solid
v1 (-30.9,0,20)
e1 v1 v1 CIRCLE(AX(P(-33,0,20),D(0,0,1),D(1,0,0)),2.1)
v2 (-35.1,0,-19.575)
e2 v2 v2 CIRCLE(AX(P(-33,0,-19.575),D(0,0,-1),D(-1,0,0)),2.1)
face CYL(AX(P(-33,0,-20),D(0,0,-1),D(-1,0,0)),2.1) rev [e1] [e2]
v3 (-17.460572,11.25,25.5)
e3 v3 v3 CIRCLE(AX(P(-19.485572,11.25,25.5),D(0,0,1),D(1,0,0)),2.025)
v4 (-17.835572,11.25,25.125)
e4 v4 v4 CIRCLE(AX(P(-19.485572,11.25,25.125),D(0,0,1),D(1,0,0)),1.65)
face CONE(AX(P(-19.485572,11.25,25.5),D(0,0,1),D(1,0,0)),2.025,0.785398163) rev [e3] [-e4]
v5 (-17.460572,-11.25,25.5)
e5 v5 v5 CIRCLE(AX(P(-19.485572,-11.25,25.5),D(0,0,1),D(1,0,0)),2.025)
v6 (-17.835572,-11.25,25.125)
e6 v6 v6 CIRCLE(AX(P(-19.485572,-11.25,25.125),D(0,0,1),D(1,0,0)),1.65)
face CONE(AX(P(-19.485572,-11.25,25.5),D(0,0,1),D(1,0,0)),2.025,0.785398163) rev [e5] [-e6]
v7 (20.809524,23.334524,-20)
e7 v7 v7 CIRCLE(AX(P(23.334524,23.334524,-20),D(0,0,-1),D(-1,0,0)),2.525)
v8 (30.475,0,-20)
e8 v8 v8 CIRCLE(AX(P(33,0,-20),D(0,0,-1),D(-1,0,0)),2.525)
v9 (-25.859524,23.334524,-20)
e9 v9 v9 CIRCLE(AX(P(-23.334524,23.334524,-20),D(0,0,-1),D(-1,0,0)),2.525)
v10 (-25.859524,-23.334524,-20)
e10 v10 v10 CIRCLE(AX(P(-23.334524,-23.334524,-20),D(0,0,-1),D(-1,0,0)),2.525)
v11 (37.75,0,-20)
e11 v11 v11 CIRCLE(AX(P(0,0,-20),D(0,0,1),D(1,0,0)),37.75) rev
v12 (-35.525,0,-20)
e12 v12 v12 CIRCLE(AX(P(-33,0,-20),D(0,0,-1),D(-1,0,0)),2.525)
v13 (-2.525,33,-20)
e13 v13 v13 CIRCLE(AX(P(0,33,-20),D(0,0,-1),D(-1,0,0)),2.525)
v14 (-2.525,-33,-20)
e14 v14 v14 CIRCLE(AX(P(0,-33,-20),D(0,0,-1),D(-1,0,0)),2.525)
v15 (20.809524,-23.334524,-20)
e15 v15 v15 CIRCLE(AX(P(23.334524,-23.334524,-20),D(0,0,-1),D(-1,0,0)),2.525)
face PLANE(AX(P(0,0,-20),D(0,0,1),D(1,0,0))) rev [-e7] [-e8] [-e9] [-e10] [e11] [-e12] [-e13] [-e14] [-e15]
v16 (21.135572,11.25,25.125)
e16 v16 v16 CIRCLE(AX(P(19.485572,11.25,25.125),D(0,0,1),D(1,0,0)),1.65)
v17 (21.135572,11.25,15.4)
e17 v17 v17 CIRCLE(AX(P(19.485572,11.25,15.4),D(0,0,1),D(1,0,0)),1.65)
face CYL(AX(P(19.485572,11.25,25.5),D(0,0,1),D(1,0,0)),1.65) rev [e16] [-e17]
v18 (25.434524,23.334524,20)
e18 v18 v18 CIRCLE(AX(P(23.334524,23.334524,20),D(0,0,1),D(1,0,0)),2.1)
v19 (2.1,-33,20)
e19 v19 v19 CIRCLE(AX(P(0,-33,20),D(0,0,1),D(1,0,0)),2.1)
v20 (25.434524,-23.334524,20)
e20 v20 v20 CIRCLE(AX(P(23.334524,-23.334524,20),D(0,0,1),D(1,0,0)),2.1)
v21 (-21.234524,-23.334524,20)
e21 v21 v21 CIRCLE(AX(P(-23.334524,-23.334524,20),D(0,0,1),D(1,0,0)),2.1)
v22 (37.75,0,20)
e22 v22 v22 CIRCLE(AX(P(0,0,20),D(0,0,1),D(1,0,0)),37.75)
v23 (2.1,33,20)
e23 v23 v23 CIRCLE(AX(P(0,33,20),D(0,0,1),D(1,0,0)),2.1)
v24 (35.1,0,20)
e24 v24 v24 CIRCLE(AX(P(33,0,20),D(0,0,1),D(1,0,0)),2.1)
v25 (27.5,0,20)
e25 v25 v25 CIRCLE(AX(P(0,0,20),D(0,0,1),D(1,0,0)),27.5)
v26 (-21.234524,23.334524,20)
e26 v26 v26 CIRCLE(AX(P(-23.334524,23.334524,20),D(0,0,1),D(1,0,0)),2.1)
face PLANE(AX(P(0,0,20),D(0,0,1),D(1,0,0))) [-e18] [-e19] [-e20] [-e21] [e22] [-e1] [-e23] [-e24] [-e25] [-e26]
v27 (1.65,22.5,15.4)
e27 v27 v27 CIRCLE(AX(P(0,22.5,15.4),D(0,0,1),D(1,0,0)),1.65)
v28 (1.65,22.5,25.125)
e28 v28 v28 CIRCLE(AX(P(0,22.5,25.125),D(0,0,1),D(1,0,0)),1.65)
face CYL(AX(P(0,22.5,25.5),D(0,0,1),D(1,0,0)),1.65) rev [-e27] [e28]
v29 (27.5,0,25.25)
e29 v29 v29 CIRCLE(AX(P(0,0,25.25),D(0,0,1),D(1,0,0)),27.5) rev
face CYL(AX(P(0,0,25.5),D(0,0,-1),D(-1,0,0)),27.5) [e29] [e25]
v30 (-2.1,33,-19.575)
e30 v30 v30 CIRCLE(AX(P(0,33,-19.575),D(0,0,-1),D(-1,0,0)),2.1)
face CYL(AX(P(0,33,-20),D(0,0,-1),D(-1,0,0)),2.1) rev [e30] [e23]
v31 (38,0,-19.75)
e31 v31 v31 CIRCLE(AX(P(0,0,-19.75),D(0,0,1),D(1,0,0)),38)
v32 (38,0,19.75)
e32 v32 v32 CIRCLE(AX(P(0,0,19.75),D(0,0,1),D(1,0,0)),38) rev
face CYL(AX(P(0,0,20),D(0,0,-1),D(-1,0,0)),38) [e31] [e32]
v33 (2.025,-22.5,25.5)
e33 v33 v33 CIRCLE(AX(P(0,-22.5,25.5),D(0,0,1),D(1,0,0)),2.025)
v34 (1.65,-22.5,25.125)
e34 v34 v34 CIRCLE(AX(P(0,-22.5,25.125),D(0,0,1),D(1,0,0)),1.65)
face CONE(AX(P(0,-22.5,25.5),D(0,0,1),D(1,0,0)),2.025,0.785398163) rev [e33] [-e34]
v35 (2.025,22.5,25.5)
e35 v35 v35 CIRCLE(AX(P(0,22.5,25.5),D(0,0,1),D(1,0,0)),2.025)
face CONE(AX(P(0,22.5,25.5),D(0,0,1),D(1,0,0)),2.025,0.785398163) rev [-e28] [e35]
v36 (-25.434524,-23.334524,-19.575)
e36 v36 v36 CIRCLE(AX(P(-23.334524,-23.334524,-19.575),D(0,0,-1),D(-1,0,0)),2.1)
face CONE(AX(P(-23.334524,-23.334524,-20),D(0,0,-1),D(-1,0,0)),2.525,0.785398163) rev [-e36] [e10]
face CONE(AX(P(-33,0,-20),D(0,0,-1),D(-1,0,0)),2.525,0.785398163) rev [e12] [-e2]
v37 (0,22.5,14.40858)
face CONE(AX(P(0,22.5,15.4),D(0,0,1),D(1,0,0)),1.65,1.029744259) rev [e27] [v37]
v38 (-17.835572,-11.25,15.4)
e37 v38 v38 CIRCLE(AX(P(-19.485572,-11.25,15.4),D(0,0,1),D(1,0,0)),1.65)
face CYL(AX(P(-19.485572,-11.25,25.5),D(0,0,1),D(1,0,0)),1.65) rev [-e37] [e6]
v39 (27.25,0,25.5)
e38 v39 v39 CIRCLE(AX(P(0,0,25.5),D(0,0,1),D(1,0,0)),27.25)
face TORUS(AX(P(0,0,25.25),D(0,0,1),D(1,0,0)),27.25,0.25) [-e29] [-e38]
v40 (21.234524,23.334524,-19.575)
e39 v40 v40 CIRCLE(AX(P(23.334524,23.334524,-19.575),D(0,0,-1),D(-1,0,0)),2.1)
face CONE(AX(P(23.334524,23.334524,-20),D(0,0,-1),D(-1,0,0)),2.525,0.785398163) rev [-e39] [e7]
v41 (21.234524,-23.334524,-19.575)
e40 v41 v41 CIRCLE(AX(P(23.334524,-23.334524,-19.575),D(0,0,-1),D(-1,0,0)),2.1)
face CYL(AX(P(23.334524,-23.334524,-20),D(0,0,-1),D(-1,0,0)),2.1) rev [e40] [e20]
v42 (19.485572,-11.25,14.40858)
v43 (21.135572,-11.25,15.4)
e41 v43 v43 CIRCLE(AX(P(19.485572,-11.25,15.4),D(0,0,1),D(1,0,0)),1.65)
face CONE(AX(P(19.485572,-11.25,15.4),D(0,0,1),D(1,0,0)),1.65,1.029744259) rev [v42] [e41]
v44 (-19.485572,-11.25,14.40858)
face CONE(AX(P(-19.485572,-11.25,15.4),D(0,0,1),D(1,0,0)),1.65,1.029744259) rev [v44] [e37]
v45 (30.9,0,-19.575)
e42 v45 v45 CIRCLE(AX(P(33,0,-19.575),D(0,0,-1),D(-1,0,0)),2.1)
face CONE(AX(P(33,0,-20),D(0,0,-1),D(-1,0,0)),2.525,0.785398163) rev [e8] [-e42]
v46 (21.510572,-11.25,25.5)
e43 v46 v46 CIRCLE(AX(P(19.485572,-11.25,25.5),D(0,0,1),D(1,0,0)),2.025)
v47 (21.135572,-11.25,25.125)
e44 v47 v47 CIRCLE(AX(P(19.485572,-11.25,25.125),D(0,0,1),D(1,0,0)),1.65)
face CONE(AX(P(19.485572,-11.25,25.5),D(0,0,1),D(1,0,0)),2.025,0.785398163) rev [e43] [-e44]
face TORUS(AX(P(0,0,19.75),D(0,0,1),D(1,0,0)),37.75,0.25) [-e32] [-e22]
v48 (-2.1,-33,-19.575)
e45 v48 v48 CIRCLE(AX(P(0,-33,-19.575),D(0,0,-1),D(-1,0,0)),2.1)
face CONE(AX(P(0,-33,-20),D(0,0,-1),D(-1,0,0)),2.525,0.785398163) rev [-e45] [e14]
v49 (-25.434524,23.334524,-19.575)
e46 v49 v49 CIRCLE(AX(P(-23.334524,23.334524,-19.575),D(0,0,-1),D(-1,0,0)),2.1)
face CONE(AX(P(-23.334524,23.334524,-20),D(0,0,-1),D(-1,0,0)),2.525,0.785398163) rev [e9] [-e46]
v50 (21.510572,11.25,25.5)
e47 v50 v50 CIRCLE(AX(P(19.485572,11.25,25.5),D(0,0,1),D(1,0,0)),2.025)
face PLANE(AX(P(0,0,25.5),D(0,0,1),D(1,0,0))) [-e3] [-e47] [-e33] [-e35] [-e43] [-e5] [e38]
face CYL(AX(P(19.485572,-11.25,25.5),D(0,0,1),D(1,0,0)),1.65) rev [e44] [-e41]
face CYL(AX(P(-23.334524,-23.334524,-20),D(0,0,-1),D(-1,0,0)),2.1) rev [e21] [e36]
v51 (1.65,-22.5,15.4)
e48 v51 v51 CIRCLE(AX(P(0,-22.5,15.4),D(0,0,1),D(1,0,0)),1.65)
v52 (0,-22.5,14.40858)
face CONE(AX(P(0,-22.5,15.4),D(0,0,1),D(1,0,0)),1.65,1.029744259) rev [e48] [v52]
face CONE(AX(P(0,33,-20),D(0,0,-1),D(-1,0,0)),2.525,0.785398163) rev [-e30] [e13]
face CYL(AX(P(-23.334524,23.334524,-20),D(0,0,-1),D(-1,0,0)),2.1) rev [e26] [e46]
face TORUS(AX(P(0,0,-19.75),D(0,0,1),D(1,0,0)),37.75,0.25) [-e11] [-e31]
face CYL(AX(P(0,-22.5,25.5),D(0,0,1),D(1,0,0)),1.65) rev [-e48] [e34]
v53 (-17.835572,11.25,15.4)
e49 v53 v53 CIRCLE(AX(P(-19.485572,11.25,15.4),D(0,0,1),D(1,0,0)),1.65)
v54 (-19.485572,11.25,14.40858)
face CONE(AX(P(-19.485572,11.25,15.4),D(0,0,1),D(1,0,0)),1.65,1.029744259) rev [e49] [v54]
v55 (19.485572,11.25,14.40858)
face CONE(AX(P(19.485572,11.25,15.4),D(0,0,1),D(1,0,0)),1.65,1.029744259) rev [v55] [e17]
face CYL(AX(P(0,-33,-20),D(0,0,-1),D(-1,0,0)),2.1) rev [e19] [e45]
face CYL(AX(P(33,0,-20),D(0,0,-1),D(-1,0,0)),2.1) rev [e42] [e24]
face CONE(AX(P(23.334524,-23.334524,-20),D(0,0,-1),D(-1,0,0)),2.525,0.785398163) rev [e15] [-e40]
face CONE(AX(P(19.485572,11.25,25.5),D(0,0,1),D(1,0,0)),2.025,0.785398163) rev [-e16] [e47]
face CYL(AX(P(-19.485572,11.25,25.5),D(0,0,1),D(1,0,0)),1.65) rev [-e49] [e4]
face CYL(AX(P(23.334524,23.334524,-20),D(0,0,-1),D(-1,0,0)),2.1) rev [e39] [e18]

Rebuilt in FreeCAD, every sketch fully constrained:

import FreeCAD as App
import Part
import Sketcher


def edges_at(feature, points):
    """Names of the edges that pass closest to the given points."""
    edges = feature.Shape.Edges
    near = lambda p: min(range(len(edges)), key=lambda i: edges[i].distToShape(Part.Vertex(*p))[0])
    return sorted({f"Edge{near(p) + 1}" for p in points})

doc = App.newDocument("Part")
body = doc.addObject("PartDesign::Body", "Body")

sketch1 = body.newObject("Sketcher::SketchObject", "Sketch")
sketch1.AttachmentSupport = (doc.getObject("XY_Plane"), [""])
sketch1.MapMode = "FlatFace"
sketch1.addGeometry(Part.Circle(App.Vector(0, 0, 0), App.Vector(0, 0, 1), 38), False)
sketch1.addConstraint(Sketcher.Constraint("Coincident", 0, 3, -1, 1))
sketch1.addConstraint(Sketcher.Constraint("Diameter", 0, 76.0))
pad1 = body.newObject("PartDesign::Pad", "Pad")
pad1.Profile = sketch1
pad1.Length = 40
pad1.Midplane = True

sketch2 = body.newObject("Sketcher::SketchObject", "Sketch001")
sketch2.AttachmentSupport = (doc.getObject("XY_Plane"), [""])
sketch2.MapMode = "FlatFace"
sketch2.AttachmentOffset = App.Placement(App.Vector(0, 0, 20), App.Rotation())
sketch2.addGeometry(Part.Circle(App.Vector(0, 0, 0), App.Vector(0, 0, 1), 28), False)
sketch2.addConstraint(Sketcher.Constraint("Coincident", 0, 3, -1, 1))
sketch2.addConstraint(Sketcher.Constraint("Diameter", 0, 55.0))
pad2 = body.newObject("PartDesign::Pad", "Pad001")
pad2.Profile = sketch2
pad2.Length = 5.5

sketch3 = body.newObject("Sketcher::SketchObject", "Sketch002")
sketch3.AttachmentSupport = (doc.getObject("XY_Plane"), [""])
sketch3.MapMode = "FlatFace"
sketch3.AttachmentOffset = App.Placement(App.Vector(0, 0, -20), App.Rotation())
sketch3.addGeometry(Part.Circle(App.Vector(0, 33, 0), App.Vector(0, 0, 1), 2.1), False)
sketch3.addGeometry(Part.Circle(App.Vector(-23.3, 23.3, 0), App.Vector(0, 0, 1), 2.1), False)
sketch3.addGeometry(Part.Circle(App.Vector(-33, 0, 0), App.Vector(0, 0, 1), 2.1), False)
sketch3.addGeometry(Part.Circle(App.Vector(-23.3, -23.3, 0), App.Vector(0, 0, 1), 2.1), False)
sketch3.addGeometry(Part.Circle(App.Vector(0, -33, 0), App.Vector(0, 0, 1), 2.1), False)
sketch3.addGeometry(Part.Circle(App.Vector(23.3, -23.3, 0), App.Vector(0, 0, 1), 2.1), False)
sketch3.addGeometry(Part.Circle(App.Vector(33, 0, 0), App.Vector(0, 0, 1), 2.1), False)
sketch3.addGeometry(Part.Circle(App.Vector(23.3, 23.3, 0), App.Vector(0, 0, 1), 2.1), False)
sketch3.addConstraint(Sketcher.Constraint("Equal", 0, 1))
sketch3.addConstraint(Sketcher.Constraint("Equal", 1, 2))
sketch3.addConstraint(Sketcher.Constraint("Equal", 2, 3))
sketch3.addConstraint(Sketcher.Constraint("Equal", 3, 4))
sketch3.addConstraint(Sketcher.Constraint("Equal", 4, 5))
sketch3.addConstraint(Sketcher.Constraint("Equal", 5, 6))
sketch3.addConstraint(Sketcher.Constraint("Equal", 6, 7))
sketch3.addConstraint(Sketcher.Constraint("Symmetric", 0, 3, 4, 3, -1, 1))
sketch3.addConstraint(Sketcher.Constraint("Symmetric", 1, 3, 5, 3, -1, 1))
sketch3.addConstraint(Sketcher.Constraint("Symmetric", 2, 3, 6, 3, -1, 1))
sketch3.addConstraint(Sketcher.Constraint("Symmetric", 3, 3, 7, 3, -1, 1))
sketch3.addConstraint(Sketcher.Constraint("Symmetric", 3, 3, 5, 3, -2))
sketch3.addConstraint(Sketcher.Constraint("PointOnObject", 0, 3, -2))
sketch3.addConstraint(Sketcher.Constraint("PointOnObject", 2, 3, -1))
sketch3.addConstraint(Sketcher.Constraint("Diameter", 0, 4.2))
sketch3.addConstraint(Sketcher.Constraint("DistanceY", -1, 1, 0, 3, 33.0))
sketch3.addConstraint(Sketcher.Constraint("DistanceX", 2, 3, -1, 1, 33.0))
sketch3.addConstraint(Sketcher.Constraint("DistanceX", 1, 3, -1, 1, 23.334524))
sketch3.addConstraint(Sketcher.Constraint("DistanceY", -1, 1, 1, 3, 23.334524))
doc.recompute()
hole = body.newObject("PartDesign::Hole", "Hole")
hole.Profile = sketch3
hole.ThreadType = "None"
hole.Diameter = 4.2
hole.DepthType = "ThroughAll"
hole.HoleCutType = "Countersink"
hole.HoleCutDiameter = 5.05
hole.HoleCutCountersinkAngle = 90
hole.Reversed = True

sketch4 = body.newObject("Sketcher::SketchObject", "Sketch003")
sketch4.AttachmentSupport = (doc.getObject("XY_Plane"), [""])
sketch4.MapMode = "FlatFace"
sketch4.AttachmentOffset = App.Placement(App.Vector(0, 0, 25.5), App.Rotation())
sketch4.addGeometry(Part.Circle(App.Vector(0, 22.5, 0), App.Vector(0, 0, 1), 1.6), False)
sketch4.addGeometry(Part.Circle(App.Vector(19.5, 11.2, 0), App.Vector(0, 0, 1), 1.6), False)
sketch4.addGeometry(Part.Circle(App.Vector(19.5, -11.2, 0), App.Vector(0, 0, 1), 1.6), False)
sketch4.addGeometry(Part.Circle(App.Vector(0, -22.5, 0), App.Vector(0, 0, 1), 1.6), False)
sketch4.addGeometry(Part.Circle(App.Vector(-19.5, -11.2, 0), App.Vector(0, 0, 1), 1.6), False)
sketch4.addGeometry(Part.Circle(App.Vector(-19.5, 11.2, 0), App.Vector(0, 0, 1), 1.6), False)
sketch4.addConstraint(Sketcher.Constraint("Equal", 0, 1))
sketch4.addConstraint(Sketcher.Constraint("Equal", 1, 2))
sketch4.addConstraint(Sketcher.Constraint("Equal", 2, 3))
sketch4.addConstraint(Sketcher.Constraint("Equal", 3, 4))
sketch4.addConstraint(Sketcher.Constraint("Equal", 4, 5))
sketch4.addConstraint(Sketcher.Constraint("Symmetric", 0, 3, 3, 3, -1, 1))
sketch4.addConstraint(Sketcher.Constraint("Symmetric", 1, 3, 4, 3, -1, 1))
sketch4.addConstraint(Sketcher.Constraint("Symmetric", 2, 3, 5, 3, -1, 1))
sketch4.addConstraint(Sketcher.Constraint("Symmetric", 2, 3, 4, 3, -2))
sketch4.addConstraint(Sketcher.Constraint("PointOnObject", 0, 3, -2))
sketch4.addConstraint(Sketcher.Constraint("Diameter", 0, 3.3))
sketch4.addConstraint(Sketcher.Constraint("DistanceY", 3, 3, 0, 3, 45.0))
sketch4.addConstraint(Sketcher.Constraint("DistanceY", 2, 3, 1, 3, 22.5))
sketch4.addConstraint(Sketcher.Constraint("DistanceX", -1, 1, 1, 3, 19.485572))
doc.recompute()
hole2 = body.newObject("PartDesign::Hole", "Hole001")
hole2.Profile = sketch4
hole2.ThreadType = "None"
hole2.Diameter = 3.3
hole2.DepthType = "Dimension"
hole2.Depth = 10.1
hole2.DrillPoint = "Angled"
hole2.DrillPointAngle = 118
hole2.HoleCutType = "Countersink"
hole2.HoleCutDiameter = 4.05
hole2.HoleCutCountersinkAngle = 90
doc.recompute()

fillet = body.newObject("PartDesign::Fillet", "Fillet")
fillet.Base = (hole2, edges_at(hole2, [(-38, 0, -20), (-38, 0, 20), (-27.5, 0, 25.5)]))
fillet.Radius = 0.25

doc.recompute()
